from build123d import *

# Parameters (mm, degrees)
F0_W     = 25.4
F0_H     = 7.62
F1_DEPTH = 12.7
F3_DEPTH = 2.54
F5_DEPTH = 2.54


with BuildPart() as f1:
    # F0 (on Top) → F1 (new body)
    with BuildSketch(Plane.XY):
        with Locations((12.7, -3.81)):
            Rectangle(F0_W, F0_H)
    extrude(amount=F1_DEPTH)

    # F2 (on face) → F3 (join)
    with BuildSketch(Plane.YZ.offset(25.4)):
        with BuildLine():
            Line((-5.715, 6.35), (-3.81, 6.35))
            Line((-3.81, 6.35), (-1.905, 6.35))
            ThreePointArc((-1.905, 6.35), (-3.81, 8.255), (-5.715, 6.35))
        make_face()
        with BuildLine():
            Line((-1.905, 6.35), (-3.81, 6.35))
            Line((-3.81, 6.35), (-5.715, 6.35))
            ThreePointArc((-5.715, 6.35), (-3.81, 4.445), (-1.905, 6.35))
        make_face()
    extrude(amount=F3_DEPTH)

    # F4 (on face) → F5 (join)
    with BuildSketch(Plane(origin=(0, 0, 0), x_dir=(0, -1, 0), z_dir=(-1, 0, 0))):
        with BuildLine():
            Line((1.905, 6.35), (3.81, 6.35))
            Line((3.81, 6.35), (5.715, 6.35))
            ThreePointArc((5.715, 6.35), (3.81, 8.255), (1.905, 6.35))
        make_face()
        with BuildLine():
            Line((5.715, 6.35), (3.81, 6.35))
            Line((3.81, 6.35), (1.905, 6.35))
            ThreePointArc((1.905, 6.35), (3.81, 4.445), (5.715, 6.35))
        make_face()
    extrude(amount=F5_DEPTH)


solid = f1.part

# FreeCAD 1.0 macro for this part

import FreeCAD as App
import Part
import Sketcher
from FreeCAD import Vector
Q = App.Units.Quantity

doc = App.newDocument("Part")
params = doc.addObject("Spreadsheet::Sheet", "Params")
for row, (alias, value) in enumerate([
    ("sketch1_width", "1 in"),
    ("sketch1_height", "0.3 in"),
    ("pad1_length", "0.5 in"),
    ("sketch2_diameter", "0.15 in"),
    ("pad2_length", "0.1 in"),
    ("sketch3_diameter", "0.15 in"),
    ("pad3_length", "0.1 in"),
], start=1):
    params.set(f"A{row}", alias)
    params.set(f"B{row}", "=" + value)
    params.setAlias(f"B{row}", alias)

body = doc.addObject("PartDesign::Body", "Body")

# Sketch on XY plane
sketch1 = doc.addObject("Sketcher::SketchObject", "Sketch")
body.addObject(sketch1)
sketch1.AttachmentSupport = (doc.XY_Plane, [""])
sketch1.MapMode = "FlatFace"
sketch1.addGeometry([
    Part.LineSegment(Vector(0, 0, 0), Vector(0, -7.62, 0)),
    Part.LineSegment(Vector(0, -7.62, 0), Vector(25.4, -7.62, 0)),
    Part.LineSegment(Vector(25.4, -7.62, 0), Vector(25.4, 0, 0)),
    Part.LineSegment(Vector(25.4, 0, 0), Vector(0, 0, 0)),
], False)
sketch1.addConstraint([
    Sketcher.Constraint("Coincident", 0, 2, 1, 1),
    Sketcher.Constraint("Coincident", 1, 2, 2, 1),
    Sketcher.Constraint("Coincident", 2, 2, 3, 1),
    Sketcher.Constraint("Coincident", 3, 2, 0, 1),
    Sketcher.Constraint("Vertical", 0),
    Sketcher.Constraint("Horizontal", 1),
    Sketcher.Constraint("Vertical", 2),
    Sketcher.Constraint("Horizontal", 3),
    Sketcher.Constraint("Coincident", 3, 2, -1, 1),
    Sketcher.Constraint("DistanceX", 1, 1, 1, 2, Q("1 in")),
    Sketcher.Constraint("DistanceY", 0, 2, 0, 1, Q("0.3 in")),
])
sketch1.setExpression("Constraints[9]", "Params.sketch1_width")
sketch1.setExpression("Constraints[10]", "Params.sketch1_height")
pad1 = doc.addObject("PartDesign::Pad", "Pad")
body.addObject(pad1)
pad1.Profile = sketch1
pad1.setExpression("Length", "Params.pad1_length")

# Sketch on YZ plane
sketch2 = doc.addObject("Sketcher::SketchObject", "Sketch001")
body.addObject(sketch2)
sketch2.AttachmentSupport = (doc.YZ_Plane, [""])
sketch2.MapMode = "FlatFace"
sketch2.AttachmentOffset = App.Placement(Vector(0, 0, 1 * 25.4), App.Rotation())
sketch2.addGeometry(Part.Circle(Vector(-3.81, 6.35, 0), Vector(0, 0, 1), 1.905), False)
sketch2.addConstraint([
    Sketcher.Constraint("Diameter", 0, Q("0.15 in")),
    Sketcher.Constraint("DistanceX", 0, 3, -1, 1, Q("0.15 in")),
    Sketcher.Constraint("DistanceY", -1, 1, 0, 3, Q("0.25 in")),
])
sketch2.setExpression("Constraints[0]", "Params.sketch2_diameter")
pad2 = doc.addObject("PartDesign::Pad", "Pad001")
body.addObject(pad2)
pad2.Profile = sketch2
pad2.setExpression("Length", "Params.pad2_length")

# Sketch on YZ plane
sketch3 = doc.addObject("Sketcher::SketchObject", "Sketch002")
body.addObject(sketch3)
sketch3.AttachmentSupport = (doc.YZ_Plane, [""])
sketch3.MapMode = "FlatFace"
sketch3.addGeometry(Part.Circle(Vector(-3.81, 6.35, 0), Vector(0, 0, 1), 1.905), False)
sketch3.addConstraint([
    Sketcher.Constraint("Diameter", 0, Q("0.15 in")),
    Sketcher.Constraint("DistanceX", 0, 3, -1, 1, Q("0.15 in")),
    Sketcher.Constraint("DistanceY", -1, 1, 0, 3, Q("0.25 in")),
])
sketch3.setExpression("Constraints[0]", "Params.sketch3_diameter")
pad3 = doc.addObject("PartDesign::Pad", "Pad002")
body.addObject(pad3)
pad3.Profile = sketch3
pad3.setExpression("Length", "Params.pad3_length")
pad3.Reversed = True

doc.recompute()
